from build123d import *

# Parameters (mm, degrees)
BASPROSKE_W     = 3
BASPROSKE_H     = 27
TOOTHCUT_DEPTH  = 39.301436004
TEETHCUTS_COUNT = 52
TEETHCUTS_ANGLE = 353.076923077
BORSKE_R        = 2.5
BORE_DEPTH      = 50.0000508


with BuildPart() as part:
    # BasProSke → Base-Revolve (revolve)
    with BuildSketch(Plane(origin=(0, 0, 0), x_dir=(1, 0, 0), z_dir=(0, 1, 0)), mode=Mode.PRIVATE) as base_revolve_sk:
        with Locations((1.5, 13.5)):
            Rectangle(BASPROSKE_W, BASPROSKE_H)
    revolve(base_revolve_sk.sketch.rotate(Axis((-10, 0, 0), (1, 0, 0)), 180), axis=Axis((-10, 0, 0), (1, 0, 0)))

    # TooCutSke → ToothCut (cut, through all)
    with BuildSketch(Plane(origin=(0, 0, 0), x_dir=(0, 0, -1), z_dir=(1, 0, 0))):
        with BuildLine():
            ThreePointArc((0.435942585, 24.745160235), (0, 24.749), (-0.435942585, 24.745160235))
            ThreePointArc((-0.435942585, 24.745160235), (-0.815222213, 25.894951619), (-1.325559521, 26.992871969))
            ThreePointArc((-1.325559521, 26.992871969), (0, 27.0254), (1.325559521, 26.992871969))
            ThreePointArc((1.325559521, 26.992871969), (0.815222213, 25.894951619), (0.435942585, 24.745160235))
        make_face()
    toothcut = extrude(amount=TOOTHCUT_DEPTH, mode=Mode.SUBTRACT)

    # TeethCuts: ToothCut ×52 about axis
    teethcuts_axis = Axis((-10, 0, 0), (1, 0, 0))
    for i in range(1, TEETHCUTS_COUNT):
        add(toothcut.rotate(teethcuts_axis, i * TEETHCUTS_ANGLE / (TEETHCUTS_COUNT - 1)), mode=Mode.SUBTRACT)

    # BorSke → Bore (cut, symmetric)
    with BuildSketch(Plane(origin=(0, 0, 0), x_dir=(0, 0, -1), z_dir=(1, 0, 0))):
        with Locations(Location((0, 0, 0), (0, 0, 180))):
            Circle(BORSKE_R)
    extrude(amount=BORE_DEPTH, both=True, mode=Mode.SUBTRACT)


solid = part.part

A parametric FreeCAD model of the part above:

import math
import FreeCAD as App
import Part
import Sketcher

V = App.Vector


def add_polygon(sketch, points):
    """Adds a closed chain of lines whose ends are joined by coincident constraints."""
    first, n = sketch.GeometryCount, len(points)
    for a, b in zip(points, points[1:] + points[:1]):
        sketch.addGeometry(Part.LineSegment(App.Vector(*a, 0), App.Vector(*b, 0)), False)
    for i in range(n):
        sketch.addConstraint(Sketcher.Constraint("Coincident", first + i, 2, first + (i + 1) % n, 1))

doc = App.newDocument("Part")
params = doc.addObject("Spreadsheet::Sheet", "Params")
for row, (alias, value) in enumerate([
    ("sketch1_width", "3 mm"),
    ("sketch1_height", "27 mm"),
    ("revolution_angle", "360 deg"),
    ("sketch2_radius", "10.4 mm"),
    ("sketch3_diameter", "5 mm"),
    ("pocket2_length", "100.000102 mm"),
], start=1):
    params.set(f"A{row}", alias)
    params.set(f"B{row}", "=" + value)
    params.setAlias(f"B{row}", alias)

body = doc.addObject("PartDesign::Body", "Body")

# Sketch on XZ plane
sketch1 = doc.addObject("Sketcher::SketchObject", "Sketch")
body.addObject(sketch1)
sketch1.AttachmentSupport = (doc.XZ_Plane, [""])
sketch1.MapMode = "FlatFace"
add_polygon(sketch1, [(0, -27), (0, 0), (3, 0), (3, -27)])  # lines 0-3
sketch1.addConstraint([
    Sketcher.Constraint("Vertical", 0),
    Sketcher.Constraint("Horizontal", 1),
    Sketcher.Constraint("Vertical", 2),
    Sketcher.Constraint("Horizontal", 3),
    Sketcher.Constraint("Coincident", 0, 2, -1, 1),
    Sketcher.Constraint("DistanceX", 1, 1, 1, 2, 3.0),
    Sketcher.Constraint("DistanceY", 0, 1, 0, 2, 27.0),
])
sketch1.setExpression("Constraints[9]", "Params.sketch1_width")
sketch1.setExpression("Constraints[10]", "Params.sketch1_height")
revolution = doc.addObject("PartDesign::Revolution", "Revolution")
body.addObject(revolution)
revolution.Profile = sketch1
revolution.ReferenceAxis = (sketch1, ["H_Axis"])
revolution.setExpression("Angle", "Params.revolution_angle")

# Sketch on YZ plane
sketch2 = doc.addObject("Sketcher::SketchObject", "Sketch001")
body.addObject(sketch2)
sketch2.AttachmentSupport = (doc.YZ_Plane, [""])
sketch2.MapMode = "FlatFace"
sketch2.addGeometry([
    Part.ArcOfCircle(Part.Circle(V(0, 0, 0), V(0, 0, 1), 24.7), math.radians(-1.01), math.radians(1.01)),
    Part.ArcOfCircle(Part.Circle(V(22.1, -10.5, 0), V(0, 0, 1), 10.4), math.radians(61.73), math.radians(75.08)),
    Part.ArcOfCircle(Part.Circle(V(0, 0, 0), V(0, 0, 1), 27), math.radians(-2.81), math.radians(2.81)),
    Part.ArcOfCircle(Part.Circle(V(22.1, 10.5, 0), V(0, 0, 1), 10.4), math.radians(-75.08), math.radians(-61.73)),
], False)
sketch2.addConstraint([
    Sketcher.Constraint("Coincident", 0, 1, 1, 2),
    Sketcher.Constraint("Coincident", 1, 1, 2, 1),
    Sketcher.Constraint("Coincident", 2, 2, 3, 2),
    Sketcher.Constraint("Coincident", 3, 1, 0, 2),
    Sketcher.Constraint("Coincident", 0, 3, -1, 1),
    Sketcher.Constraint("Coincident", 2, 3, -1, 1),
    Sketcher.Constraint("Equal", 1, 3),
    Sketcher.Constraint("Symmetric", 1, 3, 3, 3, -1),
    Sketcher.Constraint("Radius", 1, 10.4),
    Sketcher.Constraint("Radius", 0, 24.748999),
    Sketcher.Constraint("Radius", 2, 27.0254),
    Sketcher.Constraint("DistanceX", -1, 1, 1, 3, 22.067628),
    Sketcher.Constraint("DistanceY", 1, 3, -1, 1, 10.485362),
])
sketch2.setExpression("Constraints[8]", "Params.sketch2_radius")
pocket1 = doc.addObject("PartDesign::Pocket", "Pocket")
body.addObject(pocket1)
pocket1.Profile = sketch2
pocket1.Type = "ThroughAll"
pocket1.Reversed = True
doc.recompute()

polarpattern = doc.addObject("PartDesign::PolarPattern", "PolarPattern")
body.addObject(polarpattern)
polarpattern.Originals = [pocket1]
polarpattern.Axis = (doc.X_Axis, [""])
polarpattern.Angle = 360
polarpattern.Occurrences = 52
body.Tip = polarpattern

# Sketch on YZ plane
sketch3 = doc.addObject("Sketcher::SketchObject", "Sketch002")
body.addObject(sketch3)
sketch3.AttachmentSupport = (doc.YZ_Plane, [""])
sketch3.MapMode = "FlatFace"
sketch3.addGeometry(Part.Circle(V(0, 0, 0), V(0, 0, 1), 2.5), False)
sketch3.addConstraint([
    Sketcher.Constraint("Coincident", 0, 3, -1, 1),
    Sketcher.Constraint("Diameter", 0, 5.0),
])
sketch3.setExpression("Constraints[1]", "Params.sketch3_diameter")
pocket2 = doc.addObject("PartDesign::Pocket", "Pocket001")
body.addObject(pocket2)
pocket2.Profile = sketch3
pocket2.setExpression("Length", "Params.pocket2_length")
pocket2.Midplane = True

doc.recompute()
